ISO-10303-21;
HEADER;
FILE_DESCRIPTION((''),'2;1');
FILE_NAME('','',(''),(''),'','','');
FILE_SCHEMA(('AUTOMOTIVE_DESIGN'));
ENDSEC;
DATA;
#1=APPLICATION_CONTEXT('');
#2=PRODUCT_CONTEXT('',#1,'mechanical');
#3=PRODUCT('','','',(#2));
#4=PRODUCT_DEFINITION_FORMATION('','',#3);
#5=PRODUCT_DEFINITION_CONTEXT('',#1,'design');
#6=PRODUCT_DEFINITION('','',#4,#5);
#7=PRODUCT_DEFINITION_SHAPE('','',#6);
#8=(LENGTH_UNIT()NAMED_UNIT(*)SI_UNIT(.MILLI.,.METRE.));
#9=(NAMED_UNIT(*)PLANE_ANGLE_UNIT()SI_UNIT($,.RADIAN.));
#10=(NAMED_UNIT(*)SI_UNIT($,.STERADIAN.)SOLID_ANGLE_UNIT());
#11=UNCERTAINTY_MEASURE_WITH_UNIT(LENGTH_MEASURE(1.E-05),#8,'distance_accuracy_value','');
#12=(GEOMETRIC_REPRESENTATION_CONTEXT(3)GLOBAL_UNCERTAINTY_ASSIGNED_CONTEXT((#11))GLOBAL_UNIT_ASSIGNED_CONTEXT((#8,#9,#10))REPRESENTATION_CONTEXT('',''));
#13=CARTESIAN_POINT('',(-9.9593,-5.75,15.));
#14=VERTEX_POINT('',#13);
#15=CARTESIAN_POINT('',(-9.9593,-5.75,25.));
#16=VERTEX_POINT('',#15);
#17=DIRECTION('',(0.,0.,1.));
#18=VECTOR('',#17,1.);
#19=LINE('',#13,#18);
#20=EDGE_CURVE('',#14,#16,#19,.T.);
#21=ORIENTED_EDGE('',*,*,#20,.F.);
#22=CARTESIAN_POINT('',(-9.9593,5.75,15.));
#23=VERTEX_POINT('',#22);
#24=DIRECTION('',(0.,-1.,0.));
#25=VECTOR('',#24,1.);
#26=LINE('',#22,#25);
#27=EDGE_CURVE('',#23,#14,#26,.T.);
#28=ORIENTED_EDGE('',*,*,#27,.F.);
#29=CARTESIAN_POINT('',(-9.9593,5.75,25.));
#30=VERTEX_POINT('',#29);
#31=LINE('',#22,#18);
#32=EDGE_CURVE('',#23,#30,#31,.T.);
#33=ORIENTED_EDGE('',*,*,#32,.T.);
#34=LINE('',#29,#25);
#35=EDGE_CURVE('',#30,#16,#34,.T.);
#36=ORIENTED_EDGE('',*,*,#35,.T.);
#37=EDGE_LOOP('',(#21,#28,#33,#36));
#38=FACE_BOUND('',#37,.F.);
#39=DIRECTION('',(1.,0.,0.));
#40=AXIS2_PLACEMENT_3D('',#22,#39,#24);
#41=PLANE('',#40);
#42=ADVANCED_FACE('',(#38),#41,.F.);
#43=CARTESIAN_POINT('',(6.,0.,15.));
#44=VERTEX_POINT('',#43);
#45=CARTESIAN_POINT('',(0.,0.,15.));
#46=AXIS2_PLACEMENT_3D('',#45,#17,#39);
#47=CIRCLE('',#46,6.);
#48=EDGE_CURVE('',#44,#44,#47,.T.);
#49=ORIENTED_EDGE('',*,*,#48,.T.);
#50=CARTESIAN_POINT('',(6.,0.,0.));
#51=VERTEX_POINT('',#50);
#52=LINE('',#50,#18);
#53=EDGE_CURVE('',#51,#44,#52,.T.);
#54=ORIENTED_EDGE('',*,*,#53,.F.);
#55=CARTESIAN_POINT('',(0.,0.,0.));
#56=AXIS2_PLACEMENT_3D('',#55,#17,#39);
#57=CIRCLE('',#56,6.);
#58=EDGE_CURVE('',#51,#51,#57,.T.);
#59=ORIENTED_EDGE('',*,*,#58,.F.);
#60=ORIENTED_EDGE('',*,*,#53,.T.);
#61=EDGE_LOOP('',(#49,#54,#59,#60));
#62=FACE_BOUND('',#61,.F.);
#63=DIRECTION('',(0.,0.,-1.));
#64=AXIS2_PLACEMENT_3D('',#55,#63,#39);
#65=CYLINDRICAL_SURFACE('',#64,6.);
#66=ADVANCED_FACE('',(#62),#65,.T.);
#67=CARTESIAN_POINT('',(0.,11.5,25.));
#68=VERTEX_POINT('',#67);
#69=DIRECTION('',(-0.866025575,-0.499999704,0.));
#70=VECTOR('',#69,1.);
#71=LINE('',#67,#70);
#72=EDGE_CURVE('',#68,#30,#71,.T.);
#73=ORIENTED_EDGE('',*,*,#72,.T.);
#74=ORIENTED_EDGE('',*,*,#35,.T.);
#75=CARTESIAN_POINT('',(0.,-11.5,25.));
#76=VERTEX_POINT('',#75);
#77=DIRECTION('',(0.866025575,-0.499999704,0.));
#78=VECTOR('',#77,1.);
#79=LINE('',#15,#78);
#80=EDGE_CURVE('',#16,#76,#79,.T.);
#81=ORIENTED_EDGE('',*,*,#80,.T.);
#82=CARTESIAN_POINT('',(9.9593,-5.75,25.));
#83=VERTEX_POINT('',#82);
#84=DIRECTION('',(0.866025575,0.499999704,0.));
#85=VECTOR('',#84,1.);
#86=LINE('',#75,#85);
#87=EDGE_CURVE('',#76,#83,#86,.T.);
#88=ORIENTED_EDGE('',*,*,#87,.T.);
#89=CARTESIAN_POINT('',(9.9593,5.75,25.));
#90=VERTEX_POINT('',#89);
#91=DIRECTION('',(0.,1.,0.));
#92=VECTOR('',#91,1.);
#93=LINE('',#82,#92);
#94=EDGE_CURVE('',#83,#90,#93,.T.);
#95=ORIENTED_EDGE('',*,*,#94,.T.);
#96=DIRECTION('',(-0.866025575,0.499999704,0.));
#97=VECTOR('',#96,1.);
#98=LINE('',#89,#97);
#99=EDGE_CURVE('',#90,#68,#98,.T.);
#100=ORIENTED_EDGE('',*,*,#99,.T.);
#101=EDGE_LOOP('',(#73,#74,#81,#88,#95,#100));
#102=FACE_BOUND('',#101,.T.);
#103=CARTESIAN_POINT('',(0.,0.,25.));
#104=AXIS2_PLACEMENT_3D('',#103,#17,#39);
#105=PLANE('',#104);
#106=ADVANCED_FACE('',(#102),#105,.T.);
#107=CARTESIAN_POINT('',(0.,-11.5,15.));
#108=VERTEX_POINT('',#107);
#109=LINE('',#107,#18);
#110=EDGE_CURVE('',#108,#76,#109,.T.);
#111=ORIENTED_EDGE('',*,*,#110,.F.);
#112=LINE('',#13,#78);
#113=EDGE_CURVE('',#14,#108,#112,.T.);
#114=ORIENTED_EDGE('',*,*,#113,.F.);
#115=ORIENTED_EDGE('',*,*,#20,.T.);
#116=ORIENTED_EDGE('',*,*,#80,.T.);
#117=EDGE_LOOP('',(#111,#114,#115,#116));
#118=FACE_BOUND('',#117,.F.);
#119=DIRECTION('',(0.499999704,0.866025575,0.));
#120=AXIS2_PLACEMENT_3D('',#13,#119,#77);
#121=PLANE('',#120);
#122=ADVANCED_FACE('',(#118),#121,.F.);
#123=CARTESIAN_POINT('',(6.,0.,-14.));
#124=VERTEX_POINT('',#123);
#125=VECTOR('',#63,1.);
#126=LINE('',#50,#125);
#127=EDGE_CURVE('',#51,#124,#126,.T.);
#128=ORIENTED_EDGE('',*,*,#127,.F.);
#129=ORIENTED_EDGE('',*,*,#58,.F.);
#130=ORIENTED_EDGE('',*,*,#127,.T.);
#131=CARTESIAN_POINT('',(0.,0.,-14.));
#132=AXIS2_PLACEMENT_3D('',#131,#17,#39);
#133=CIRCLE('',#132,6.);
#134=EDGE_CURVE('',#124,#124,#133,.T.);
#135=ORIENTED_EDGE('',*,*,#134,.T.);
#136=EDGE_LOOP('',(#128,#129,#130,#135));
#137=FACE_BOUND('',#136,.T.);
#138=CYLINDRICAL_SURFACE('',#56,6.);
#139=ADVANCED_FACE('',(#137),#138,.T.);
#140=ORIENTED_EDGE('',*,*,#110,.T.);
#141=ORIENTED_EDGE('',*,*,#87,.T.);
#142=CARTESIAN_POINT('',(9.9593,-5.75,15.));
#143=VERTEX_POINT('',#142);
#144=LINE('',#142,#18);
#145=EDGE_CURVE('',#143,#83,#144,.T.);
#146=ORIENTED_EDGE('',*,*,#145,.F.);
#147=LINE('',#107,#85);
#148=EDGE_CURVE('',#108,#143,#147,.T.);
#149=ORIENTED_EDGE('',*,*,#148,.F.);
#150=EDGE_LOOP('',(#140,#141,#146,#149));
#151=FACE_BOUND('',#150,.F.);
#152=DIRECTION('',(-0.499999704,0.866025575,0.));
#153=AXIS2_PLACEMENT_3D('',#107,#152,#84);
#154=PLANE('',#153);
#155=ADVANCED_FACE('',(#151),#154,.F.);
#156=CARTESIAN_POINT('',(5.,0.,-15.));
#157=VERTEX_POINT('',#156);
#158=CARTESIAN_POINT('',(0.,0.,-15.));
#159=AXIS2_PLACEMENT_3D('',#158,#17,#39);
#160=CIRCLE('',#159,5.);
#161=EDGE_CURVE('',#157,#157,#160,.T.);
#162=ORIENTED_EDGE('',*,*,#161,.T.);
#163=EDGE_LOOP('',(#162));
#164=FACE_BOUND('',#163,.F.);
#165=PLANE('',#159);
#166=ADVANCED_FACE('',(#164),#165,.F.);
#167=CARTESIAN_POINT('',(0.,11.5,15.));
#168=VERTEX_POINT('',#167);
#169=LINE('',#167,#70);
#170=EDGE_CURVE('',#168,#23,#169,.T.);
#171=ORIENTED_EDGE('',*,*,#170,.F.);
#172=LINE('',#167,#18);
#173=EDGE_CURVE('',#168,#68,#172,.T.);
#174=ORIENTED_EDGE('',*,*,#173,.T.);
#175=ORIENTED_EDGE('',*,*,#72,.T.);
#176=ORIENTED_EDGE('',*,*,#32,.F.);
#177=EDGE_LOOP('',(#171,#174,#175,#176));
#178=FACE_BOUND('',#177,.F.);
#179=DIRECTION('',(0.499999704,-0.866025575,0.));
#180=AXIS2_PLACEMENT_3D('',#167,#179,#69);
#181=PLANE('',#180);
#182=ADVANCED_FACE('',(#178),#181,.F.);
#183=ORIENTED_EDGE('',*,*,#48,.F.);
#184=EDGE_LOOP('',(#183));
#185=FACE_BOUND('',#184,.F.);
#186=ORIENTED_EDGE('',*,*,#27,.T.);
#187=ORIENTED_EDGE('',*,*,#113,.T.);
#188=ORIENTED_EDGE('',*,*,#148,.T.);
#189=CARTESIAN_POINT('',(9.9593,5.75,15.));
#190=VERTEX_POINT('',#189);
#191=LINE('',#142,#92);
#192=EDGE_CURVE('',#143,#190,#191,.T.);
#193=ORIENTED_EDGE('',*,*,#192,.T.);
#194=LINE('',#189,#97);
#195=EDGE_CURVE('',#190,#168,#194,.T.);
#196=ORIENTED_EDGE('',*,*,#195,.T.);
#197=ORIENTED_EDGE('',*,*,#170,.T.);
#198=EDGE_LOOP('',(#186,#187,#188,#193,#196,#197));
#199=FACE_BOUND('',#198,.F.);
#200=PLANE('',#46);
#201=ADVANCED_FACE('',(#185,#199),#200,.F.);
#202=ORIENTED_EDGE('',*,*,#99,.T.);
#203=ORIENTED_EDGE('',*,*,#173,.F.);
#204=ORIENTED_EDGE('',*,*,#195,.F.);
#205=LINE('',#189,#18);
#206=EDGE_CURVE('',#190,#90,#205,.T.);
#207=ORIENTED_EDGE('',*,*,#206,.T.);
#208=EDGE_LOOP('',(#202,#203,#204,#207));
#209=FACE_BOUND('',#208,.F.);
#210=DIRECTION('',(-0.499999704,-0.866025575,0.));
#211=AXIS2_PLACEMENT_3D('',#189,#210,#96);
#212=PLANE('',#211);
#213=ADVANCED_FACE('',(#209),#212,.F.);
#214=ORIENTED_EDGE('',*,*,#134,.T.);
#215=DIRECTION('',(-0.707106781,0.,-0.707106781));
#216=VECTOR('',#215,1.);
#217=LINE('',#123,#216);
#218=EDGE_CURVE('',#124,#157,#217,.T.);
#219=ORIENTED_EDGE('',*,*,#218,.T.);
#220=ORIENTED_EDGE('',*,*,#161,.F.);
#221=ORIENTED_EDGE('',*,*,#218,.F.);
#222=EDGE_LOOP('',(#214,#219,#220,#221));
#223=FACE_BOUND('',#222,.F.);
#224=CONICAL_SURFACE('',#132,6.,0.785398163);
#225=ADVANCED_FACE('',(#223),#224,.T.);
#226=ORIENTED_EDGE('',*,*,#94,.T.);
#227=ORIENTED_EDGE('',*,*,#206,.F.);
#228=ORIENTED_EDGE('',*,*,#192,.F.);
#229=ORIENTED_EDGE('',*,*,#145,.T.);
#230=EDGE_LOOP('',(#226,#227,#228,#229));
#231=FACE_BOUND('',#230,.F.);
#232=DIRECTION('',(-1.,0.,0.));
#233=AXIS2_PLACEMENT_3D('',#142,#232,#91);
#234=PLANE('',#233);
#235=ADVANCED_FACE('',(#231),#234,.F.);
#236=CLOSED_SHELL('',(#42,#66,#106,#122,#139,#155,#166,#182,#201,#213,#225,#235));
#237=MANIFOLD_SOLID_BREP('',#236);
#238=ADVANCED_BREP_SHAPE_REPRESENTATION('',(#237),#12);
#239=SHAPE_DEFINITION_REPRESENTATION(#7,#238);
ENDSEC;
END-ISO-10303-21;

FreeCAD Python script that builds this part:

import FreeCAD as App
import Part
import Sketcher
from FreeCAD import Vector
Q = App.Units.Quantity


def edges_at(feature, points):
    """Names of the edges that pass closest to the given points."""
    edges = feature.Shape.Edges
    near = lambda p: min(range(len(edges)), key=lambda i: edges[i].distToShape(Part.Vertex(*p))[0])
    return sorted({f"Edge{near(p) + 1}" for p in points})


def add_polygon(sketch, points):
    """Adds a closed chain of lines whose ends are joined by coincident constraints."""
    first, n = sketch.GeometryCount, len(points)
    for a, b in zip(points, points[1:] + points[:1]):
        sketch.addGeometry(Part.LineSegment(App.Vector(*a, 0), App.Vector(*b, 0)), False)
    for i in range(n):
        sketch.addConstraint(Sketcher.Constraint("Coincident", first + i, 2, first + (i + 1) % n, 1))

doc = App.newDocument("Part")
body = doc.addObject("PartDesign::Body", "Body")

sketch1 = body.newObject("Sketcher::SketchObject", "Sketch")
sketch1.AttachmentSupport = (doc.getObject("XY_Plane"), [""])
sketch1.MapMode = "FlatFace"
sketch1.addGeometry(Part.Circle(Vector(0, 0, 0), Vector(0, 0, 1), 6), False)
sketch1.addConstraint(Sketcher.Constraint("Coincident", 0, 3, -1, 1))
sketch1.addConstraint(Sketcher.Constraint("Diameter", 0, Q("12 mm")))
pad1 = body.newObject("PartDesign::Pad", "Pad")
pad1.Profile = sketch1
pad1.Length = 30
pad1.Midplane = True

sketch2 = body.newObject("Sketcher::SketchObject", "Sketch001")
sketch2.AttachmentSupport = (doc.getObject("XY_Plane"), [""])
sketch2.MapMode = "FlatFace"
sketch2.AttachmentOffset = App.Placement(Vector(0, 0, 15), App.Rotation())
add_polygon(sketch2, [(0, 12), (-10, 6), (-10, -6), (0, -12), (10, -6), (10, 6)])
sketch2.addConstraint(Sketcher.Constraint("Vertical", 1))
sketch2.addConstraint(Sketcher.Constraint("Vertical", 4))
sketch2.addConstraint(Sketcher.Constraint("Symmetric", 0, 2, 3, 2, -1, 1))
sketch2.addConstraint(Sketcher.Constraint("Symmetric", 2, 2, 5, 2, -1, 1))
sketch2.addConstraint(Sketcher.Constraint("PointOnObject", 2, 2, -2))
sketch2.addConstraint(Sketcher.Constraint("Parallel", 2, 5))
sketch2.addConstraint(Sketcher.Constraint("Horizontal", 1, 2, 3, 2))
sketch2.addConstraint(Sketcher.Constraint("Angle", 0, Q("-150 deg")))
sketch2.addConstraint(Sketcher.Constraint("DistanceY", 1, 2, 1, 1, Q("11.5 mm")))
sketch2.addConstraint(Sketcher.Constraint("DistanceY", 2, 2, 5, 2, Q("23 mm")))
pad2 = body.newObject("PartDesign::Pad", "Pad001")
pad2.Profile = sketch2
pad2.Length = 10
doc.recompute()

chamfer = body.newObject("PartDesign::Chamfer", "Chamfer")
chamfer.Base = (pad2, edges_at(pad2, [(-6, 0, -15)]))
chamfer.Size = 1

doc.recompute()
